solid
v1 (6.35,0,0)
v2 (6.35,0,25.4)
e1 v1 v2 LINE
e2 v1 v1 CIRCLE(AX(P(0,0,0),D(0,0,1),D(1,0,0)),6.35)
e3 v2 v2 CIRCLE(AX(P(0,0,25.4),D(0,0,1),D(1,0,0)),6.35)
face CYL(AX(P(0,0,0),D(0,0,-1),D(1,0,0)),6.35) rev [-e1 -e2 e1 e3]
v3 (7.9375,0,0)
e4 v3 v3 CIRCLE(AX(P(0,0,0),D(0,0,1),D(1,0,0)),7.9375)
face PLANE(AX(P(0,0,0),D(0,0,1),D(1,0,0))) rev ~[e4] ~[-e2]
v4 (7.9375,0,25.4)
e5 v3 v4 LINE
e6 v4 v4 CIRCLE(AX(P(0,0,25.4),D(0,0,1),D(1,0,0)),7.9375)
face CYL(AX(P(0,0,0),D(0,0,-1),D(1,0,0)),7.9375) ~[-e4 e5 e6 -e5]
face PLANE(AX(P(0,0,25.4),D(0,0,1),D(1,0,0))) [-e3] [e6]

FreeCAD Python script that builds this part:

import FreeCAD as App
import Part
import Sketcher

V = App.Vector
Q = App.Units.Quantity

doc = App.newDocument("Part")
body = doc.addObject("PartDesign::Body", "Body")

# Sketch on XY plane
sketch1 = body.newObject("Sketcher::SketchObject", "Sketch")
sketch1.AttachmentSupport = (doc.getObject("XY_Plane"), [""])
sketch1.MapMode = "FlatFace"
sketch1.addGeometry([
    Part.Circle(V(0, 0, 0), V(0, 0, 1), 7.9375),
    Part.Circle(V(0, 0, 0), V(0, 0, 1), 6.35),
], False)
sketch1.addConstraint([
    Sketcher.Constraint("Coincident", 0, 3, -1, 1),
    Sketcher.Constraint("Coincident", 1, 3, -1, 1),
    Sketcher.Constraint("Diameter", 1, Q("0.5 in")),
    Sketcher.Constraint("Diameter", 0, Q("0.625 in")),
])
pad1 = body.newObject("PartDesign::Pad", "Pad")
pad1.Profile = sketch1
pad1.Length = Q("1 in")

doc.recompute()
